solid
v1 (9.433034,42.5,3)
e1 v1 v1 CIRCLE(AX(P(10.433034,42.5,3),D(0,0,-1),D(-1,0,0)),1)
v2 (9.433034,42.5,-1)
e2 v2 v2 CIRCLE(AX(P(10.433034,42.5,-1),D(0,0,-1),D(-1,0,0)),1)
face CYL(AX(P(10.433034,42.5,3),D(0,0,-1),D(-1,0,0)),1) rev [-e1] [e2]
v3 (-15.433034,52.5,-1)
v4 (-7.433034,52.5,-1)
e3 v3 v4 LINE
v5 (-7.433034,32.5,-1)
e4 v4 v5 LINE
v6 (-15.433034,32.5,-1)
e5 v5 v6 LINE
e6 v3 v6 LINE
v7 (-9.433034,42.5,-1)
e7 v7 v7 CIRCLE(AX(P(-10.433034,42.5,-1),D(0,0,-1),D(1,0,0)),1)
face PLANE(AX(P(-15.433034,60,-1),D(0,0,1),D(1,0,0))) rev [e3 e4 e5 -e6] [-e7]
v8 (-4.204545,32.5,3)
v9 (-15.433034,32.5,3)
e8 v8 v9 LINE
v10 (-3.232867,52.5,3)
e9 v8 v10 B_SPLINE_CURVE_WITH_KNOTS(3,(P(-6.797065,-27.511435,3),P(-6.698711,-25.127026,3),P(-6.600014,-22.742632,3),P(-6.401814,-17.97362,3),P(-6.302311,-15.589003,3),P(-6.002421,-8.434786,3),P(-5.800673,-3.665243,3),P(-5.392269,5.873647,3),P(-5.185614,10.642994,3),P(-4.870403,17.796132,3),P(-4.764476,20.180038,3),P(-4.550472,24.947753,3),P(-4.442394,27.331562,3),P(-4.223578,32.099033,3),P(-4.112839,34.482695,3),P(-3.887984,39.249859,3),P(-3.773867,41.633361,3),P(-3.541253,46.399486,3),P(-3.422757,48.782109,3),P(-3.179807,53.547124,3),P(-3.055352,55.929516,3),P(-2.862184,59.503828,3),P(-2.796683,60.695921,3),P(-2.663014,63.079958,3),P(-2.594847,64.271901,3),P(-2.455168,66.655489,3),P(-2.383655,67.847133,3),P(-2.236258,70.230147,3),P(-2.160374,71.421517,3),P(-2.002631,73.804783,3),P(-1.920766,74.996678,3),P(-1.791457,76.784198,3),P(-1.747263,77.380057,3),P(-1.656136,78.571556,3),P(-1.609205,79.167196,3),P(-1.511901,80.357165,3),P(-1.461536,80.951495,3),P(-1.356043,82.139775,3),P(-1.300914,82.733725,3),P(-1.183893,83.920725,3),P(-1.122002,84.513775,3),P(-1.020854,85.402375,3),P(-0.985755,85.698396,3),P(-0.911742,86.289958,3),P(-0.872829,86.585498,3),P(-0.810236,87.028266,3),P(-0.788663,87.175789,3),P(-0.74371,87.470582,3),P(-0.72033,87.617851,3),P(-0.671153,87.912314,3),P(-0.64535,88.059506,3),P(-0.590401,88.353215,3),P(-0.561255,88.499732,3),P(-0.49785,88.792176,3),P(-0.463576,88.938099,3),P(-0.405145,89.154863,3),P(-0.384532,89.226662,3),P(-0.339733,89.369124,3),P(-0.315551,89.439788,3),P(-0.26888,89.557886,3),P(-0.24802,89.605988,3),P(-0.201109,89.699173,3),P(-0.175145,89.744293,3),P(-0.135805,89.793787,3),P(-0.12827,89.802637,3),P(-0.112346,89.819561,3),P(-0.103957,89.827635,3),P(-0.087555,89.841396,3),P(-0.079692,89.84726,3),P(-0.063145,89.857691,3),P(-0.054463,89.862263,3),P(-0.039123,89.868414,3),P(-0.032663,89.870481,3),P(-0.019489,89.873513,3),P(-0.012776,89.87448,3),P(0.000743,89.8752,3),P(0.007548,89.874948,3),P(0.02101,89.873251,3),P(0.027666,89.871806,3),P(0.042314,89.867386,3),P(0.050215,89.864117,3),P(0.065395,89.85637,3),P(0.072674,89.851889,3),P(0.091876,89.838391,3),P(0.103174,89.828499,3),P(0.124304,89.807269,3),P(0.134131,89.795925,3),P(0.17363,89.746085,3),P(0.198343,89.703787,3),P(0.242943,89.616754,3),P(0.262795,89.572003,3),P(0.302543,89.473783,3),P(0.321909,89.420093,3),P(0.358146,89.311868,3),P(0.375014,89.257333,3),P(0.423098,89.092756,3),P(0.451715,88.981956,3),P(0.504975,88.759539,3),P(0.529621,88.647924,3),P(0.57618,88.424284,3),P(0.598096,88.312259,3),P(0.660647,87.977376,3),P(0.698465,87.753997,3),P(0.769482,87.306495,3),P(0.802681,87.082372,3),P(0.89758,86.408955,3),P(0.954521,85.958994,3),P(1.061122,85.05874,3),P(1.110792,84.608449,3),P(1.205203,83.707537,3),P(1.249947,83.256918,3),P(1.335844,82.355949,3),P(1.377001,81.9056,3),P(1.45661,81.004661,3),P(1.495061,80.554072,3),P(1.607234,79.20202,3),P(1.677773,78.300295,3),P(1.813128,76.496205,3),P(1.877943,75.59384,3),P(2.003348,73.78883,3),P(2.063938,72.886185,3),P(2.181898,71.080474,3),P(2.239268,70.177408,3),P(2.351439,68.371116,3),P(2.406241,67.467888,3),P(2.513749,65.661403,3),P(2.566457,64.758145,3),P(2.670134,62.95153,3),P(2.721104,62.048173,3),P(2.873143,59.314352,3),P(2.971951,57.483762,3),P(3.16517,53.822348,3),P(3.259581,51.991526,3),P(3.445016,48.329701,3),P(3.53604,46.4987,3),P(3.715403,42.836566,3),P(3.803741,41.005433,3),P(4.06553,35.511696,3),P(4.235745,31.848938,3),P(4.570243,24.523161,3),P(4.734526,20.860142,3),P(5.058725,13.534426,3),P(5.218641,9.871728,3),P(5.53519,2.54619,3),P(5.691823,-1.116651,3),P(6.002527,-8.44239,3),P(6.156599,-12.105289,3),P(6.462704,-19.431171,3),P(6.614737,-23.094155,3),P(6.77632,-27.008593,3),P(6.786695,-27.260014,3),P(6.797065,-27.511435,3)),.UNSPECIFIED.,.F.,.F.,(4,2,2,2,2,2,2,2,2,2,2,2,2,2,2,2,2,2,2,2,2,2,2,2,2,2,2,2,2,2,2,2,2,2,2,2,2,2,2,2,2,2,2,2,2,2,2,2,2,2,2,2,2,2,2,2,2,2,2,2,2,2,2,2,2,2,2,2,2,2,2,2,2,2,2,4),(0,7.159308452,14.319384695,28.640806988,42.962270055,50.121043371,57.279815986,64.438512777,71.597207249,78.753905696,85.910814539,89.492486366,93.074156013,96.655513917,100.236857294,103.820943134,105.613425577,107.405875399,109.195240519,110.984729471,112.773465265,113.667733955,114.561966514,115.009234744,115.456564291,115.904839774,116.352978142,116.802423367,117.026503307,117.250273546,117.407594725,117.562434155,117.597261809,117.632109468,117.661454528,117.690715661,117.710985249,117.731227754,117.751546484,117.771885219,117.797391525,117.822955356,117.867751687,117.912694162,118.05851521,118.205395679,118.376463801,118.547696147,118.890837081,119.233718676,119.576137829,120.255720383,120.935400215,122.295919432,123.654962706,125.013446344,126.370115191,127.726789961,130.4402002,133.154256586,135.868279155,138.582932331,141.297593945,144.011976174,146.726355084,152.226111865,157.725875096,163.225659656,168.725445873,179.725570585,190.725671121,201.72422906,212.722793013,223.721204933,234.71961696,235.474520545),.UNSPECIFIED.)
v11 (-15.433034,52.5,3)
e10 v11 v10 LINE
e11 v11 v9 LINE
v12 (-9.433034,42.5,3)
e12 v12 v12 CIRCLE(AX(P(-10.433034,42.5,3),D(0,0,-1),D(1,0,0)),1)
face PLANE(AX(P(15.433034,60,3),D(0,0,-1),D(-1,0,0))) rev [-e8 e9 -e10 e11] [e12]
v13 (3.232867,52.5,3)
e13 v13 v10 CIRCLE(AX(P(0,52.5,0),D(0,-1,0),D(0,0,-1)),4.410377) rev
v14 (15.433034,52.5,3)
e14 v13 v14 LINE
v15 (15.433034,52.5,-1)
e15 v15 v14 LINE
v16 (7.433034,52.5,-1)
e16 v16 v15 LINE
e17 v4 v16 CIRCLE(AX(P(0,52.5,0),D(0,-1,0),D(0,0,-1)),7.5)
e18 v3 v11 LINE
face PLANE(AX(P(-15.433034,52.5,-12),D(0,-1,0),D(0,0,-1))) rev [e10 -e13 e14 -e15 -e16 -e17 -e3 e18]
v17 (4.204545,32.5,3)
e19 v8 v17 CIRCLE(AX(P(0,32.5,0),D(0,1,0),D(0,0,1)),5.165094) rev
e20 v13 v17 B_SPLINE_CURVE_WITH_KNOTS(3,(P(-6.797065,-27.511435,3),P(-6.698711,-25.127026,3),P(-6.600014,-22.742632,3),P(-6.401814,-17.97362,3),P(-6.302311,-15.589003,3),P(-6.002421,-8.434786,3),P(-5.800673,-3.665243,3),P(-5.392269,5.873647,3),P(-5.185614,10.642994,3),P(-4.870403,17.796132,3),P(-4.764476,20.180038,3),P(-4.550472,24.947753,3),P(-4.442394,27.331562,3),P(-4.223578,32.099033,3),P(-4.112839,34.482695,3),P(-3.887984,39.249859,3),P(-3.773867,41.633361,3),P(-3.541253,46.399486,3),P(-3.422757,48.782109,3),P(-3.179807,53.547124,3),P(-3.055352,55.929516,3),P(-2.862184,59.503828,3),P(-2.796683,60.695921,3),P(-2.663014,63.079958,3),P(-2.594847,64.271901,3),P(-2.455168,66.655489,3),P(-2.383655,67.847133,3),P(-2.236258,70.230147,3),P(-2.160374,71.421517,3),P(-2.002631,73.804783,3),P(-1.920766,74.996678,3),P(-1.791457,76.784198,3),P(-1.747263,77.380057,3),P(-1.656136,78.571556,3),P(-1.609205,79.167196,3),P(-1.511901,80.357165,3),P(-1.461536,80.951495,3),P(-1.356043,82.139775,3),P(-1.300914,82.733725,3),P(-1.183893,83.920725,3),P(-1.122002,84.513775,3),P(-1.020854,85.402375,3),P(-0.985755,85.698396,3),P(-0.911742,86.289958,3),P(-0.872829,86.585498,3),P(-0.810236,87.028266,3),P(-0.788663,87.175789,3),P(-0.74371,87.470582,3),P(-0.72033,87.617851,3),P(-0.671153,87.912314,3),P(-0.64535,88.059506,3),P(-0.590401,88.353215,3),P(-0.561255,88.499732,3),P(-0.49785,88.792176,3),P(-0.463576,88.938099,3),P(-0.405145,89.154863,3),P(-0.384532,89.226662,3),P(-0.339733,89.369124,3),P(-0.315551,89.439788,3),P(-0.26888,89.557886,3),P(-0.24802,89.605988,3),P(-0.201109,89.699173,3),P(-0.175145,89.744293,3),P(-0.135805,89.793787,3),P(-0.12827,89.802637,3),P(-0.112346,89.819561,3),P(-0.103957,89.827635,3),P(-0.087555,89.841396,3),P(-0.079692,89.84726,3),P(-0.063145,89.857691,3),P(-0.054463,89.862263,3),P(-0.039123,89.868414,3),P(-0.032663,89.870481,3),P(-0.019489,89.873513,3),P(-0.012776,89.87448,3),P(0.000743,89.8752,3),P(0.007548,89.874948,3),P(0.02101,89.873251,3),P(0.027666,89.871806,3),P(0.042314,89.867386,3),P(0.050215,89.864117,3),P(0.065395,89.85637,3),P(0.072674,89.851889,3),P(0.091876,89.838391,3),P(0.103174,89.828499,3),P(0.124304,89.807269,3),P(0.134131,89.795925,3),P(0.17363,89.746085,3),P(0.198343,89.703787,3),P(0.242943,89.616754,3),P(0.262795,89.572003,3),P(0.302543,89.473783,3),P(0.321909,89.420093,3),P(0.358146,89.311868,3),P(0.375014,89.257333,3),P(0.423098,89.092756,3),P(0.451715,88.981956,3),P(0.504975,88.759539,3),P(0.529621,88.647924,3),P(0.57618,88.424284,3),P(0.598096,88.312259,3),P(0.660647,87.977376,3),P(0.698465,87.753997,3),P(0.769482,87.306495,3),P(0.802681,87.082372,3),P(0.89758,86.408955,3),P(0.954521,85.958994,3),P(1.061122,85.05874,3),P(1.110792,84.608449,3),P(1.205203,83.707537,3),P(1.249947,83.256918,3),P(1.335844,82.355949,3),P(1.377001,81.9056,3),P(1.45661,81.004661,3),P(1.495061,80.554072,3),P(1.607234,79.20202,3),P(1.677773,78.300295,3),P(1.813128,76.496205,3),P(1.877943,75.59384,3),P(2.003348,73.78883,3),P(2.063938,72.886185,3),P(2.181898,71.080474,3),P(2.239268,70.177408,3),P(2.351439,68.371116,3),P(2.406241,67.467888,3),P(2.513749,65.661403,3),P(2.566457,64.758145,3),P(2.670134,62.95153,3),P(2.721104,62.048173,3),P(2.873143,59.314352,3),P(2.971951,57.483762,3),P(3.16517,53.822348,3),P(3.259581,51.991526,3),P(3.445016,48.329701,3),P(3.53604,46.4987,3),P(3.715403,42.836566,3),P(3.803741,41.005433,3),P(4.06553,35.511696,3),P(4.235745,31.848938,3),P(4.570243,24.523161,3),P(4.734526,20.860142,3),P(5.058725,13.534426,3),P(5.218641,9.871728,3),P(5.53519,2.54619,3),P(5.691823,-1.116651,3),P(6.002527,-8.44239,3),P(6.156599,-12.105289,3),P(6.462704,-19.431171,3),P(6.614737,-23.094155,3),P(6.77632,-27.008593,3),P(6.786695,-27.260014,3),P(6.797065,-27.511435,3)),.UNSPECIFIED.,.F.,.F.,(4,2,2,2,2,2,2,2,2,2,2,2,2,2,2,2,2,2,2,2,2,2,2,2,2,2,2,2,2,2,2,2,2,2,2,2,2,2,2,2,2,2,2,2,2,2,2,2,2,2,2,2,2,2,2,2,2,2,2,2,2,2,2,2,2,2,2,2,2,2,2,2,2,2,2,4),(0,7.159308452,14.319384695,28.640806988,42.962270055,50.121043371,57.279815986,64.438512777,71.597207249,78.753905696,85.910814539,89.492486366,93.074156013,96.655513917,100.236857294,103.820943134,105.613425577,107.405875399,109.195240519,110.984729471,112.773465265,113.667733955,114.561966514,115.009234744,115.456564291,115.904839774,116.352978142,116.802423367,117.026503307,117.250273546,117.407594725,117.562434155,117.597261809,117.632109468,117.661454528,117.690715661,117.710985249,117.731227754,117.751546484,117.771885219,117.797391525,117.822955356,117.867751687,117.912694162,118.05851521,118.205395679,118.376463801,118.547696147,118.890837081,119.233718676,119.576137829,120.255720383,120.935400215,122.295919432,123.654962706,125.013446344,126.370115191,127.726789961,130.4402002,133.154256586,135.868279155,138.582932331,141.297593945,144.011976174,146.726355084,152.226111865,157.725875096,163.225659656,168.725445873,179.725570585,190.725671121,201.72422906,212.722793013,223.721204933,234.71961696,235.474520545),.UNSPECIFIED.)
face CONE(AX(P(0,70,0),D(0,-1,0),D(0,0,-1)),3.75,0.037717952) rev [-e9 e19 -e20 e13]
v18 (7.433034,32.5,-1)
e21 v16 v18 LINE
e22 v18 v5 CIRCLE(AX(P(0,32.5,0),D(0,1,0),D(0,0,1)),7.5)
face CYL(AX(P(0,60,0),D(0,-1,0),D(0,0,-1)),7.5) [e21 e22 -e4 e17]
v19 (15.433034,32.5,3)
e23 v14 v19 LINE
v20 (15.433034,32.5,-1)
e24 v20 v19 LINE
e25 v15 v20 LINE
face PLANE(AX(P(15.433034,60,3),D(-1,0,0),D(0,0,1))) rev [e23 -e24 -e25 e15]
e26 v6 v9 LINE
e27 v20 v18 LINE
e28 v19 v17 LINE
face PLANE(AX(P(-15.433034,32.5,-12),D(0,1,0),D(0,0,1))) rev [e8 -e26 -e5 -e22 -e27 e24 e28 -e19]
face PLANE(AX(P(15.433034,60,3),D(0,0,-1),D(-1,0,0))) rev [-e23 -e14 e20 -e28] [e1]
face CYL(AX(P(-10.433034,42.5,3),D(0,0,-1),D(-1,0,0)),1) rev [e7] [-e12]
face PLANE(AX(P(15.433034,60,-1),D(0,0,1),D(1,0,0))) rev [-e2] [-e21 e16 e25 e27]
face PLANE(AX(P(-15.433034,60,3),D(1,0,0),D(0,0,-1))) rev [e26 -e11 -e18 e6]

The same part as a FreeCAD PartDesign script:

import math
import FreeCAD as App
import Part
import Sketcher

doc = App.newDocument("Part")
params = doc.addObject("Spreadsheet::Sheet", "Params")
for row, (alias, value) in enumerate([
    ("sketch1_radius", "7.5 mm"),
    ("sketch1_width", "8 mm"),
    ("sketch1_height", "4 mm"),
    ("pad1_length", "60 mm"),
    ("sketch2_diameter", "12 mm"),
    ("pocket1_length", "17 mm"),
    ("sketch3_height", "53 mm"),
    ("sketch3_width", "5.75 mm"),
    ("groove_angle", "360 deg"),
    ("sketch4_height", "32.5 mm"),
    ("sketch4_height2", "7.5 mm"),
    ("pocket2_length", "15 mm"),
    ("sketch5_diameter", "2 mm"),
], start=1):
    params.set(f"A{row}", alias)
    params.set(f"B{row}", "=" + value)
    params.setAlias(f"B{row}", alias)

body = doc.addObject("PartDesign::Body", "Body")

# Sketch on XZ plane
sketch1 = body.newObject("Sketcher::SketchObject", "Sketch")
sketch1.AttachmentSupport = (doc.getObject("XZ_Plane"), [""])
sketch1.MapMode = "FlatFace"
sketch1.addGeometry([
    Part.LineSegment(App.Vector(-15.4, 3, 0), App.Vector(15.4, 3, 0)),  # 0
    Part.LineSegment(App.Vector(15.4, 3, 0), App.Vector(15.4, -1, 0)),  # 1
    Part.LineSegment(App.Vector(15.4, -1, 0), App.Vector(7.4, -1, 0)),  # 2
    Part.ArcOfCircle(Part.Circle(App.Vector(0, 0, 0), App.Vector(0, 0, 1), 7.5), math.radians(-172), math.radians(-8)),  # 3
    Part.LineSegment(App.Vector(-7.4, -1, 0), App.Vector(-15.4, -1, 0)),  # 4
    Part.LineSegment(App.Vector(-15.4, -1, 0), App.Vector(-15.4, 3, 0)),  # 5
], False)
sketch1.addConstraint([
    Sketcher.Constraint("Coincident", 0, 2, 1, 1),
    Sketcher.Constraint("Coincident", 1, 2, 2, 1),
    Sketcher.Constraint("Coincident", 2, 2, 3, 2),
    Sketcher.Constraint("Coincident", 3, 1, 4, 1),
    Sketcher.Constraint("Coincident", 4, 2, 5, 1),
    Sketcher.Constraint("Coincident", 5, 2, 0, 1),
    Sketcher.Constraint("Horizontal", 0),
    Sketcher.Constraint("Vertical", 1),
    Sketcher.Constraint("Horizontal", 2),
    Sketcher.Constraint("Horizontal", 4),
    Sketcher.Constraint("Vertical", 5),
    Sketcher.Constraint("Coincident", 3, 3, -1, 1),
    Sketcher.Constraint("Symmetric", 1, 2, 4, 2, -2),
    Sketcher.Constraint("Radius", 3, 7.5),
    Sketcher.Constraint("DistanceX", 2, 2, 2, 1, 8.0),
    Sketcher.Constraint("DistanceY", 1, 2, 1, 1, 4.0),
    Sketcher.Constraint("DistanceY", -1, 1, 0, 2, 3.0),
])
sketch1.setExpression("Constraints[13]", "Params.sketch1_radius")
sketch1.setExpression("Constraints[14]", "Params.sketch1_width")
sketch1.setExpression("Constraints[15]", "Params.sketch1_height")
pad1 = body.newObject("PartDesign::Pad", "Pad")
pad1.Profile = sketch1
pad1.setExpression("Length", "Params.pad1_length")
pad1.Reversed = True

# Sketch on XZ plane
sketch2 = body.newObject("Sketcher::SketchObject", "Sketch001")
sketch2.AttachmentSupport = (doc.getObject("XZ_Plane"), [""])
sketch2.MapMode = "FlatFace"
sketch2.addGeometry(Part.Circle(App.Vector(0, 0, 0), App.Vector(0, 0, 1), 6), False)
sketch2.addConstraint([
    Sketcher.Constraint("Coincident", 0, 3, -1, 1),
    Sketcher.Constraint("Diameter", 0, 12.0),
])
sketch2.setExpression("Constraints[1]", "Params.sketch2_diameter")
pocket1 = body.newObject("PartDesign::Pocket", "Pocket")
pocket1.Profile = sketch2
pocket1.setExpression("Length", "Params.pocket1_length")

# Sketch on XY plane
sketch3 = body.newObject("Sketcher::SketchObject", "Sketch002")
sketch3.AttachmentSupport = (doc.getObject("XY_Plane"), [""])
sketch3.MapMode = "FlatFace"
sketch3.addGeometry([
    Part.LineSegment(App.Vector(-5.8, 17, 0), App.Vector(0, 17, 0)),
    Part.LineSegment(App.Vector(0, 17, 0), App.Vector(0, 70, 0)),
    Part.LineSegment(App.Vector(0, 70, 0), App.Vector(-3.8, 70, 0)),
    Part.LineSegment(App.Vector(-3.8, 70, 0), App.Vector(-5.8, 17, 0)),
], False)
sketch3.addConstraint([
    Sketcher.Constraint("Coincident", 0, 2, 1, 1),
    Sketcher.Constraint("Coincident", 1, 2, 2, 1),
    Sketcher.Constraint("Coincident", 2, 2, 3, 1),
    Sketcher.Constraint("Coincident", 3, 2, 0, 1),
    Sketcher.Constraint("Horizontal", 0),
    Sketcher.Constraint("Vertical", 1),
    Sketcher.Constraint("Horizontal", 2),
    Sketcher.Constraint("PointOnObject", 0, 2, -2),
    Sketcher.Constraint("DistanceY", 1, 1, 1, 2, 53.0),
    Sketcher.Constraint("DistanceY", -1, 1, 0, 2, 17.0),
    Sketcher.Constraint("DistanceX", 3, 2, 2, 2, 2.0),
    Sketcher.Constraint("DistanceX", 0, 1, 0, 2, 5.75),
])
sketch3.setExpression("Constraints[8]", "Params.sketch3_height")
sketch3.setExpression("Constraints[11]", "Params.sketch3_width")
groove = body.newObject("PartDesign::Groove", "Groove")
groove.Profile = sketch3
groove.ReferenceAxis = (sketch3, ["V_Axis"])
groove.setExpression("Angle", "Params.groove_angle")

# Sketch on XY plane
sketch4 = body.newObject("Sketcher::SketchObject", "Sketch003")
sketch4.AttachmentSupport = (doc.getObject("XY_Plane"), [""])
sketch4.MapMode = "FlatFace"
sketch4.AttachmentOffset = App.Placement(App.Vector(0, 0, 3), App.Rotation())
sketch4.addGeometry([
    Part.LineSegment(App.Vector(-15, 32, 0), App.Vector(-15, 0, 0)),  # 0
    Part.LineSegment(App.Vector(-15, 0, 0), App.Vector(15, 0, 0)),  # 1
    Part.LineSegment(App.Vector(15, 0, 0), App.Vector(15, 32, 0)),  # 2
    Part.LineSegment(App.Vector(15, 32, 0), App.Vector(-15, 32, 0)),  # 3
    Part.LineSegment(App.Vector(-15, 60, 0), App.Vector(-15, 52, 0)),  # 4
    Part.LineSegment(App.Vector(-15, 52, 0), App.Vector(15, 52, 0)),  # 5
    Part.LineSegment(App.Vector(15, 52, 0), App.Vector(15, 60, 0)),  # 6
    Part.LineSegment(App.Vector(15, 60, 0), App.Vector(-15, 60, 0)),  # 7
], False)
sketch4.addConstraint([
    Sketcher.Constraint("Coincident", 0, 2, 1, 1),
    Sketcher.Constraint("Coincident", 1, 2, 2, 1),
    Sketcher.Constraint("Coincident", 2, 2, 3, 1),
    Sketcher.Constraint("Coincident", 3, 2, 0, 1),
    Sketcher.Constraint("Coincident", 4, 2, 5, 1),
    Sketcher.Constraint("Coincident", 5, 2, 6, 1),
    Sketcher.Constraint("Coincident", 6, 2, 7, 1),
    Sketcher.Constraint("Coincident", 7, 2, 4, 1),
    Sketcher.Constraint("Vertical", 0),
    Sketcher.Constraint("Horizontal", 1),
    Sketcher.Constraint("Vertical", 2),
    Sketcher.Constraint("Horizontal", 3),
    Sketcher.Constraint("Vertical", 4),
    Sketcher.Constraint("Horizontal", 5),
    Sketcher.Constraint("Vertical", 6),
    Sketcher.Constraint("Horizontal", 7),
    Sketcher.Constraint("Symmetric", 0, 2, 1, 2, -1, 1),
    Sketcher.Constraint("Vertical", 3, 2, 4, 2),
    Sketcher.Constraint("Vertical", 2, 2, 5, 2),
    Sketcher.Constraint("DistanceY", 0, 2, 0, 1, 32.5),
    Sketcher.Constraint("DistanceY", 4, 2, 4, 1, 7.5),
    Sketcher.Constraint("DistanceY", -1, 1, 6, 2, 60.0),
    Sketcher.Constraint("DistanceX", 1, 1, 1, 2, 30.866069),
])
sketch4.setExpression("Constraints[19]", "Params.sketch4_height")
sketch4.setExpression("Constraints[20]", "Params.sketch4_height2")
pocket2 = body.newObject("PartDesign::Pocket", "Pocket001")
pocket2.Profile = sketch4
pocket2.setExpression("Length", "Params.pocket2_length")

# Sketch on XY plane
sketch5 = body.newObject("Sketcher::SketchObject", "Sketch004")
sketch5.AttachmentSupport = (doc.getObject("XY_Plane"), [""])
sketch5.MapMode = "FlatFace"
sketch5.AttachmentOffset = App.Placement(App.Vector(0, 0, -1), App.Rotation())
sketch5.addGeometry([
    Part.Circle(App.Vector(10.4, 42.5, 0), App.Vector(0, 0, 1), 1),
    Part.Circle(App.Vector(-10.4, 42.5, 0), App.Vector(0, 0, 1), 1),
], False)
sketch5.addConstraint([
    Sketcher.Constraint("Equal", 0, 1),
    Sketcher.Constraint("Symmetric", 0, 3, 1, 3, -2),
    Sketcher.Constraint("Diameter", 0, 2.0),
    Sketcher.Constraint("DistanceY", -1, 1, 0, 3, 42.5),
    Sketcher.Constraint("DistanceX", 1, 3, 0, 3, 20.866069),
])
sketch5.setExpression("Constraints[2]", "Params.sketch5_diameter")
pocket3 = body.newObject("PartDesign::Pocket", "Pocket002")
pocket3.Profile = sketch5
pocket3.Type = "ThroughAll"
pocket3.Reversed = True

doc.recompute()
